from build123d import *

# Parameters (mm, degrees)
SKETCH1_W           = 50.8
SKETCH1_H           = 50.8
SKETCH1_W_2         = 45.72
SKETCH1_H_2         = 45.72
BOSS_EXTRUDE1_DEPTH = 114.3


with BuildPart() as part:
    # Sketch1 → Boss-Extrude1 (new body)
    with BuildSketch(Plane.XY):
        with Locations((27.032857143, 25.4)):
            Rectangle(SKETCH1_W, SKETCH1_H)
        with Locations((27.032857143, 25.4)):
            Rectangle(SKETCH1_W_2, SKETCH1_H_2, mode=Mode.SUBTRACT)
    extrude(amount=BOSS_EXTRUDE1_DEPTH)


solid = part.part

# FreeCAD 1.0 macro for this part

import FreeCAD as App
import Part
import Sketcher

V = App.Vector
Q = App.Units.Quantity

doc = App.newDocument("Part")
params = doc.addObject("Spreadsheet::Sheet", "Params")
for row, (alias, value) in enumerate([
    ("sketch1_width", "2 in"),
    ("sketch1_width2", "1.8 in"),
    ("pad1_length", "4.5 in"),
], start=1):
    params.set(f"A{row}", alias)
    params.set(f"B{row}", "=" + value)
    params.setAlias(f"B{row}", alias)

body = doc.addObject("PartDesign::Body", "Body")

# Sketch on XY plane
sketch1 = doc.addObject("Sketcher::SketchObject", "Sketch")
body.addObject(sketch1)
sketch1.AttachmentSupport = (doc.XY_Plane, [""])
sketch1.MapMode = "FlatFace"
sketch1.addGeometry(Part.LineSegment(V(1.632857, 50.8, 0), V(1.632857, 0, 0)), False)
sketch1.addGeometry(Part.LineSegment(V(1.632857, 0, 0), V(52.432857, 0, 0)), False)
sketch1.addGeometry(Part.LineSegment(V(52.432857, 0, 0), V(52.432857, 50.8, 0)), False)
sketch1.addGeometry(Part.LineSegment(V(52.432857, 50.8, 0), V(1.632857, 50.8, 0)), False)
sketch1.addGeometry(Part.LineSegment(V(49.892857, 2.54, 0), V(4.172857, 2.54, 0)), False)
sketch1.addGeometry(Part.LineSegment(V(4.172857, 2.54, 0), V(4.172857, 48.26, 0)), False)
sketch1.addGeometry(Part.LineSegment(V(4.172857, 48.26, 0), V(49.892857, 48.26, 0)), False)
sketch1.addGeometry(Part.LineSegment(V(49.892857, 48.26, 0), V(49.892857, 2.54, 0)), False)
sketch1.addConstraint(Sketcher.Constraint("Coincident", 0, 2, 1, 1))
sketch1.addConstraint(Sketcher.Constraint("Coincident", 1, 2, 2, 1))
sketch1.addConstraint(Sketcher.Constraint("Coincident", 2, 2, 3, 1))
sketch1.addConstraint(Sketcher.Constraint("Coincident", 3, 2, 0, 1))
sketch1.addConstraint(Sketcher.Constraint("Coincident", 4, 2, 5, 1))
sketch1.addConstraint(Sketcher.Constraint("Coincident", 5, 2, 6, 1))
sketch1.addConstraint(Sketcher.Constraint("Coincident", 6, 2, 7, 1))
sketch1.addConstraint(Sketcher.Constraint("Coincident", 7, 2, 4, 1))
sketch1.addConstraint(Sketcher.Constraint("Vertical", 0))
sketch1.addConstraint(Sketcher.Constraint("Horizontal", 1))
sketch1.addConstraint(Sketcher.Constraint("Vertical", 2))
sketch1.addConstraint(Sketcher.Constraint("Horizontal", 3))
sketch1.addConstraint(Sketcher.Constraint("Horizontal", 4))
sketch1.addConstraint(Sketcher.Constraint("Vertical", 5))
sketch1.addConstraint(Sketcher.Constraint("Horizontal", 6))
sketch1.addConstraint(Sketcher.Constraint("Vertical", 7))
sketch1.addConstraint(Sketcher.Constraint("PointOnObject", 0, 2, -1))
sketch1.addConstraint(Sketcher.Constraint("Equal", 3, 0))
sketch1.addConstraint(Sketcher.Constraint("Equal", 6, 5))
sketch1.addConstraint(Sketcher.Constraint("DistanceX", 1, 1, 1, 2, Q("2 in")))
sketch1.addConstraint(Sketcher.Constraint("DistanceX", 4, 2, 4, 1, Q("1.8 in")))
sketch1.addConstraint(Sketcher.Constraint("DistanceY", -1, 1, 4, 2, Q("0.1 in")))
sketch1.addConstraint(Sketcher.Constraint("DistanceX", 0, 2, 4, 2, Q("0.1 in")))
sketch1.addConstraint(Sketcher.Constraint("DistanceX", -1, 1, 0, 2, Q("1.632857 mm")))
sketch1.setExpression("Constraints[19]", "Params.sketch1_width")
sketch1.setExpression("Constraints[20]", "Params.sketch1_width2")
pad1 = doc.addObject("PartDesign::Pad", "Pad")
body.addObject(pad1)
pad1.Profile = sketch1
pad1.setExpression("Length", "Params.pad1_length")

doc.recompute()
